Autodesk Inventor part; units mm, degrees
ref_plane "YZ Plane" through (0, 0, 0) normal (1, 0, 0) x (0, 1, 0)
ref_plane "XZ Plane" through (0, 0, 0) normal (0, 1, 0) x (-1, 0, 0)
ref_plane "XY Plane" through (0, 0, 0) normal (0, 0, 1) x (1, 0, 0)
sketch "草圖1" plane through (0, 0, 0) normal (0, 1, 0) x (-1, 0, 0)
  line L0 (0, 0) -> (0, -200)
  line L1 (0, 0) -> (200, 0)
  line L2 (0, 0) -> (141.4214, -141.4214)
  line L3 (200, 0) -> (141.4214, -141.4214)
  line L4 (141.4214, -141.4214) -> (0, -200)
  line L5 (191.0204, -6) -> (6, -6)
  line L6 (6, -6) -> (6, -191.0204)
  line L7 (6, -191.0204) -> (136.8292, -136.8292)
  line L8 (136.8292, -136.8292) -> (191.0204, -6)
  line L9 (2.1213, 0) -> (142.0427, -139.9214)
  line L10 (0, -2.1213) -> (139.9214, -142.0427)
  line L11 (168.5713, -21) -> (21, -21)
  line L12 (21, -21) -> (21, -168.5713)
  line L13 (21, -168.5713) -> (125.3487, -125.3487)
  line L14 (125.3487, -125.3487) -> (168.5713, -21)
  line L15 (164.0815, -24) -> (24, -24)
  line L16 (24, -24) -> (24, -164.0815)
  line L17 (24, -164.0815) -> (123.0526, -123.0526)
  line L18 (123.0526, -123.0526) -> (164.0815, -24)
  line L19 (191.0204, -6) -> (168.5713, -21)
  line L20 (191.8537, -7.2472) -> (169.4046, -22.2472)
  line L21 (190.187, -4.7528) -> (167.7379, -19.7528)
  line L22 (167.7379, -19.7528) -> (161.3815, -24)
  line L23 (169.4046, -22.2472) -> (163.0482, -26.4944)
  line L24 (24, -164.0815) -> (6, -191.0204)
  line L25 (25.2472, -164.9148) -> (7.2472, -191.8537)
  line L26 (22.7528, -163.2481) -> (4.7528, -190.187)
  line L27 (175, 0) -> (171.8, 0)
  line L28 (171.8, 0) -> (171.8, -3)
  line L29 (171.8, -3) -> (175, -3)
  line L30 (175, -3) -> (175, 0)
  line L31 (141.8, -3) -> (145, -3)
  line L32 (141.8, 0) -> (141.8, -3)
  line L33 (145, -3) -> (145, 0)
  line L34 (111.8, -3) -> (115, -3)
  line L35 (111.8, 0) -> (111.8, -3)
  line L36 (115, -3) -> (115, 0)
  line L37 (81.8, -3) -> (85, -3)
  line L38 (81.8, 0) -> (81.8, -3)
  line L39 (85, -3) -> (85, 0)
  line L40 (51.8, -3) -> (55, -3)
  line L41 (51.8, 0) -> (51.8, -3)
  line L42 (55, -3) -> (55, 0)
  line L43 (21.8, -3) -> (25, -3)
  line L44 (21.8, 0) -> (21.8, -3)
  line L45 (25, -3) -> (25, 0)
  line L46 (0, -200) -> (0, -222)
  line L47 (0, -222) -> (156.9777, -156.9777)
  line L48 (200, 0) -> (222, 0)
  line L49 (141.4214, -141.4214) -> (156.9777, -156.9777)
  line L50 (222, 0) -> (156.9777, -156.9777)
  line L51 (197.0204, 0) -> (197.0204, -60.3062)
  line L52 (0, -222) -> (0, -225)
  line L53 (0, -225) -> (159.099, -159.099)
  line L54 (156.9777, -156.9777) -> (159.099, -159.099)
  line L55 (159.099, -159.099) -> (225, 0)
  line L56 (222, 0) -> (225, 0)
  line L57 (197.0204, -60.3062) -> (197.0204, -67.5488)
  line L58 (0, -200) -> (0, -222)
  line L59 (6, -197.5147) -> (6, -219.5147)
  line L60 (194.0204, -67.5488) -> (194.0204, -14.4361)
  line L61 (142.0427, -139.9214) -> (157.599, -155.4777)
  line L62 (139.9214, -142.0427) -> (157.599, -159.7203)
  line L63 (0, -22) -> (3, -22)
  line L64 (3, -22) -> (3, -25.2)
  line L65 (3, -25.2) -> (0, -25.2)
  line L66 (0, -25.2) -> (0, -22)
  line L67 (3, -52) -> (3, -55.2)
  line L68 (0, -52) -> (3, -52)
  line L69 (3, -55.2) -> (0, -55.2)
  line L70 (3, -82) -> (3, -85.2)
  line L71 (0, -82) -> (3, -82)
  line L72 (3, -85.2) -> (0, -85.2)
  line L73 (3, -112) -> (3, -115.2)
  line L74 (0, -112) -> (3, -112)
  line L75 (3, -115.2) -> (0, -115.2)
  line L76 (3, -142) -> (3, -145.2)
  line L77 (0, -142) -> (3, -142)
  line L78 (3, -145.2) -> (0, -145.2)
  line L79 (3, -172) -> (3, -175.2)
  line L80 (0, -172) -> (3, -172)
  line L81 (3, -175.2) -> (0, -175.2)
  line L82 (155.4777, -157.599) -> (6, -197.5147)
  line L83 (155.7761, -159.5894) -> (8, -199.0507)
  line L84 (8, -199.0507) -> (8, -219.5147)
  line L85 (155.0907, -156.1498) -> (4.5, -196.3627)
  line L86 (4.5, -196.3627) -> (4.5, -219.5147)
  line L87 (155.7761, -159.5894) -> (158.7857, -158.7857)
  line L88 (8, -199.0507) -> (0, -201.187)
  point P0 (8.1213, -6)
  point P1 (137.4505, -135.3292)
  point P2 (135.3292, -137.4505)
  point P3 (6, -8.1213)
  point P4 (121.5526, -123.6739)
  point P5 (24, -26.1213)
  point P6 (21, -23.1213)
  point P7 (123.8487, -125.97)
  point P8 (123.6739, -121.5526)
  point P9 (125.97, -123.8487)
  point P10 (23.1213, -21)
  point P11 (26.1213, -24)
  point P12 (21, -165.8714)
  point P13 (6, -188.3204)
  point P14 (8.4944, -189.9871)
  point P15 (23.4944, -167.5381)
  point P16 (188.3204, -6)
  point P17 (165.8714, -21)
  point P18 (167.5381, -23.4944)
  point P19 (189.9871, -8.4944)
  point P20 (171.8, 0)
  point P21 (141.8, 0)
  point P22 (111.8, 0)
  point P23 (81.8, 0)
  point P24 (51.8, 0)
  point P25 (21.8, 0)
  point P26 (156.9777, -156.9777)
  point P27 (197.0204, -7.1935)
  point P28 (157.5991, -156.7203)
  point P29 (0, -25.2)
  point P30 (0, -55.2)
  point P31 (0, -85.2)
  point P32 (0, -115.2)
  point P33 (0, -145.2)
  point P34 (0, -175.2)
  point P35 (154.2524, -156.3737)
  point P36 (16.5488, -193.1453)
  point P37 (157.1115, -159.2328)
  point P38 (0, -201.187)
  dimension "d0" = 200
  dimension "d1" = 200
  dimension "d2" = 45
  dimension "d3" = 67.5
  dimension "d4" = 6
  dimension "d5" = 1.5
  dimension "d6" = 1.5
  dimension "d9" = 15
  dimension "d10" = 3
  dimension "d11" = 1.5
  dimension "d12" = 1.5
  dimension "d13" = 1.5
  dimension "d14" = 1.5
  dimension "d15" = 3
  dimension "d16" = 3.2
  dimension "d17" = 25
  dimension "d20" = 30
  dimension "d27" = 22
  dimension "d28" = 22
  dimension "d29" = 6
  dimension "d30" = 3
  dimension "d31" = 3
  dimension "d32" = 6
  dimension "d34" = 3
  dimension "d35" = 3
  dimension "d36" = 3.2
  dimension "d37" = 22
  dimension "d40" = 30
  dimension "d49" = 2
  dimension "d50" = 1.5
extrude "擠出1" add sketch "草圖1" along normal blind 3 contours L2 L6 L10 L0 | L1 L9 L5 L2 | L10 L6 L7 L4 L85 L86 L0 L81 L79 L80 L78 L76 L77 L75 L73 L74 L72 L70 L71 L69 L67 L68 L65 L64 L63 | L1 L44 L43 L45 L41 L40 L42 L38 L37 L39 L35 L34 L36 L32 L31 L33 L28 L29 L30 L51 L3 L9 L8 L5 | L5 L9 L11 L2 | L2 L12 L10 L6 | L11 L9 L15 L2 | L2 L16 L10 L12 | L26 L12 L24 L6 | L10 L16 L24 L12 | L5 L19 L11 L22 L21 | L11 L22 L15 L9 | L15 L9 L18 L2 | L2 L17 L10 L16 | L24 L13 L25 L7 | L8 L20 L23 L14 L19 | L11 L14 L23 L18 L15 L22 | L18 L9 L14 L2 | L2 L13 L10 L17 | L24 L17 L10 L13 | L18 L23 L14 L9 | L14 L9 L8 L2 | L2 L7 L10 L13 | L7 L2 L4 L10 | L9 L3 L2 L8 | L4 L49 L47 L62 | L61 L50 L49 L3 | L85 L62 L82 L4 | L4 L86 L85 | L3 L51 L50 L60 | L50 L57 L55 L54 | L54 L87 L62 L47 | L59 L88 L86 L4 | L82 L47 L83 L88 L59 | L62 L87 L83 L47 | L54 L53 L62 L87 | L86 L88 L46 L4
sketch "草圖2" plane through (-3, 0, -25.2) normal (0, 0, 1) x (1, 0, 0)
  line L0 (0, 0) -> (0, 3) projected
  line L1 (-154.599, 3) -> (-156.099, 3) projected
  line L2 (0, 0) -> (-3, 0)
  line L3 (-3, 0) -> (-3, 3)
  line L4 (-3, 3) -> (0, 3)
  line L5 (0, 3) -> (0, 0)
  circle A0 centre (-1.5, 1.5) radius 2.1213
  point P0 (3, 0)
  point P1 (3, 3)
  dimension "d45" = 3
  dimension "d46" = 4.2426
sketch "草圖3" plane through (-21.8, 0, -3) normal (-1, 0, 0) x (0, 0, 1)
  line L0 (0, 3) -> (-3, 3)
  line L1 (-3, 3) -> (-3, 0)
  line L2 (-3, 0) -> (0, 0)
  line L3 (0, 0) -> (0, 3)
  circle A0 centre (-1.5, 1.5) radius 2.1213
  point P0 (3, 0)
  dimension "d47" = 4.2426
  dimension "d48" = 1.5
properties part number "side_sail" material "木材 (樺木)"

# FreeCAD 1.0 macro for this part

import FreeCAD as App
import Part
import Sketcher
from FreeCAD import Vector
Q = App.Units.Quantity


def add_polygon(sketch, points):
    """Adds a closed chain of lines whose ends are joined by coincident constraints."""
    first, n = sketch.GeometryCount, len(points)
    for a, b in zip(points, points[1:] + points[:1]):
        sketch.addGeometry(Part.LineSegment(App.Vector(*a, 0), App.Vector(*b, 0)), False)
    for i in range(n):
        sketch.addConstraint(Sketcher.Constraint("Coincident", first + i, 2, first + (i + 1) % n, 1))

doc = App.newDocument("Part")
body = doc.addObject("PartDesign::Body", "Body")

# Sketch on XZ plane
sketch1 = body.newObject("Sketcher::SketchObject", "Sketch")
sketch1.AttachmentSupport = (doc.getObject("XZ_Plane"), [""])
sketch1.MapMode = "FlatFace"
add_polygon(sketch1, [(0, 0), (0, -22), (-3, -22), (-3, -25.2), (0, -25.2), (0, -52), (-3, -52), (-3, -55.2), (0, -55.2), (0, -82), (-3, -82), (-3, -85.2), (0, -85.2), (0, -112), (-3, -112), (-3, -115.2), (0, -115.2), (0, -142), (-3, -142), (-3, -145.2), (0, -145.2), (0, -172), (-3, -172), (-3, -175.2), (0, -175.2), (0, -201.2), (-8, -199.1), (-155.8, -159.6), (-157.1, -159.2), (-157.6, -159.7), (-159.1, -159.1), (-197, -67.5), (-197, 0), (-175, 0), (-175, -3), (-171.8, -3), (-171.8, 0), (-145, 0), (-145, -3), (-141.8, -3), (-141.8, 0), (-115, 0), (-115, -3), (-111.8, -3), (-111.8, 0), (-85, 0), (-85, -3), (-81.8, -3), (-81.8, 0), (-55, 0), (-55, -3), (-51.8, -3), (-51.8, 0), (-25, 0), (-25, -3), (-21.8, -3), (-21.8, 0)])  # lines 0-56
add_polygon(sketch1, [(-6, -8.1), (-21, -23.1), (-21, -165.9), (-6, -188.3)])  # lines 57-60
add_polygon(sketch1, [(-135.3, -137.5), (-8.5, -190), (-23.5, -167.5), (-123.8, -126)])  # lines 61-64
add_polygon(sketch1, [(-16.5, -193.1), (-139.9, -142), (-154.3, -156.4)])  # lines 65-67
add_polygon(sketch1, [(-142, -139.9), (-194, -14.4), (-194, -67.5), (-157.6, -155.5)])  # lines 68-71
add_polygon(sketch1, [(-190, -8.5), (-137.5, -135.3), (-126, -123.8), (-167.5, -23.5), (-169.4, -22.2)])  # lines 72-76
add_polygon(sketch1, [(-8.1, -6), (-188.3, -6), (-167.7, -19.8), (-165.9, -21), (-23.1, -21)])  # lines 77-81
add_polygon(sketch1, [(-24, -26.1), (-121.6, -123.7), (-24, -164.1)])  # lines 82-84
add_polygon(sketch1, [(-164.1, -24), (-123.7, -121.6), (-26.1, -24)])  # lines 85-87
sketch1.addConstraint([
    Sketcher.Constraint("Vertical", 0),
    Sketcher.Constraint("Horizontal", 1),
    Sketcher.Constraint("Vertical", 2),
    Sketcher.Constraint("Horizontal", 3),
    Sketcher.Constraint("Vertical", 4),
    Sketcher.Constraint("Horizontal", 5),
    Sketcher.Constraint("Vertical", 6),
    Sketcher.Constraint("Horizontal", 7),
    Sketcher.Constraint("Vertical", 8),
    Sketcher.Constraint("Horizontal", 9),
    Sketcher.Constraint("Vertical", 10),
    Sketcher.Constraint("Horizontal", 11),
    Sketcher.Constraint("Vertical", 12),
    Sketcher.Constraint("Horizontal", 13),
    Sketcher.Constraint("Vertical", 14),
    Sketcher.Constraint("Horizontal", 15),
    Sketcher.Constraint("Vertical", 16),
    Sketcher.Constraint("Horizontal", 17),
    Sketcher.Constraint("Vertical", 18),
    Sketcher.Constraint("Horizontal", 19),
    Sketcher.Constraint("Vertical", 20),
    Sketcher.Constraint("Horizontal", 21),
    Sketcher.Constraint("Vertical", 22),
    Sketcher.Constraint("Horizontal", 23),
    Sketcher.Constraint("Vertical", 24),
    Sketcher.Constraint("Vertical", 31),
    Sketcher.Constraint("Horizontal", 32),
    Sketcher.Constraint("Vertical", 33),
    Sketcher.Constraint("Horizontal", 34),
    Sketcher.Constraint("Vertical", 35),
    Sketcher.Constraint("Horizontal", 36),
    Sketcher.Constraint("Vertical", 37),
    Sketcher.Constraint("Horizontal", 38),
    Sketcher.Constraint("Vertical", 39),
    Sketcher.Constraint("Horizontal", 40),
    Sketcher.Constraint("Vertical", 41),
    Sketcher.Constraint("Horizontal", 42),
    Sketcher.Constraint("Vertical", 43),
    Sketcher.Constraint("Horizontal", 44),
    Sketcher.Constraint("Vertical", 45),
    Sketcher.Constraint("Horizontal", 46),
    Sketcher.Constraint("Vertical", 47),
    Sketcher.Constraint("Horizontal", 48),
    Sketcher.Constraint("Vertical", 49),
    Sketcher.Constraint("Horizontal", 50),
    Sketcher.Constraint("Vertical", 51),
    Sketcher.Constraint("Horizontal", 52),
    Sketcher.Constraint("Vertical", 53),
    Sketcher.Constraint("Horizontal", 54),
    Sketcher.Constraint("Vertical", 55),
    Sketcher.Constraint("Horizontal", 56),
    Sketcher.Constraint("Vertical", 58),
    Sketcher.Constraint("Vertical", 60),
    Sketcher.Constraint("Vertical", 69),
    Sketcher.Constraint("Horizontal", 77),
    Sketcher.Constraint("Horizontal", 80),
    Sketcher.Constraint("Vertical", 84),
    Sketcher.Constraint("Horizontal", 87),
    Sketcher.Constraint("Coincident", 56, 2, -1, 1),
    Sketcher.Constraint("PointOnObject", 3, 2, -2),
    Sketcher.Constraint("PointOnObject", 7, 2, -2),
    Sketcher.Constraint("PointOnObject", 11, 2, -2),
    Sketcher.Constraint("PointOnObject", 15, 2, -2),
    Sketcher.Constraint("PointOnObject", 19, 2, -2),
    Sketcher.Constraint("PointOnObject", 23, 2, -2),
    Sketcher.Constraint("PointOnObject", 31, 2, -1),
    Sketcher.Constraint("PointOnObject", 35, 2, -1),
    Sketcher.Constraint("PointOnObject", 39, 2, -1),
    Sketcher.Constraint("PointOnObject", 43, 2, -1),
    Sketcher.Constraint("PointOnObject", 47, 2, -1),
    Sketcher.Constraint("PointOnObject", 51, 2, -1),
    Sketcher.Constraint("Parallel", 25, 26),
    Sketcher.Constraint("Parallel", 26, 27),
    Sketcher.Constraint("Parallel", 28, 57),
    Sketcher.Constraint("Parallel", 29, 61),
    Sketcher.Constraint("Parallel", 59, 62),
    Sketcher.Constraint("Parallel", 61, 63),
    Sketcher.Constraint("Parallel", 57, 64),
    Sketcher.Constraint("Parallel", 63, 65),
    Sketcher.Constraint("Parallel", 64, 66),
    Sketcher.Constraint("Parallel", 27, 67),
    Sketcher.Constraint("Parallel", 30, 68),
    Sketcher.Constraint("Parallel", 68, 70),
    Sketcher.Constraint("Parallel", 66, 71),
    Sketcher.Constraint("Parallel", 70, 72),
    Sketcher.Constraint("Parallel", 71, 73),
    Sketcher.Constraint("Parallel", 72, 74),
    Sketcher.Constraint("Parallel", 75, 76),
    Sketcher.Constraint("Parallel", 76, 78),
    Sketcher.Constraint("Parallel", 78, 79),
    Sketcher.Constraint("Parallel", 73, 81),
    Sketcher.Constraint("Parallel", 81, 82),
    Sketcher.Constraint("Parallel", 65, 83),
    Sketcher.Constraint("Parallel", 74, 85),
    Sketcher.Constraint("Parallel", 82, 86),
    Sketcher.Constraint("Horizontal", 34, 2, 37, 2),
    Sketcher.Constraint("Horizontal", 38, 2, 41, 2),
    Sketcher.Constraint("Horizontal", 42, 2, 45, 2),
    Sketcher.Constraint("Horizontal", 46, 2, 49, 2),
    Sketcher.Constraint("Horizontal", 50, 2, 53, 2),
    Sketcher.Constraint("Horizontal", 30, 2, 69, 2),
    Sketcher.Constraint("Vertical", 2, 2, 5, 2),
    Sketcher.Constraint("Vertical", 6, 2, 9, 2),
    Sketcher.Constraint("Vertical", 10, 2, 13, 2),
    Sketcher.Constraint("Vertical", 14, 2, 17, 2),
    Sketcher.Constraint("Vertical", 18, 2, 21, 2),
    Sketcher.Constraint("Vertical", 28, 2, 70, 2),
    Sketcher.Constraint("Equal", 34, 38),
    Sketcher.Constraint("Equal", 36, 40),
    Sketcher.Constraint("Equal", 38, 42),
    Sketcher.Constraint("Equal", 40, 44),
    Sketcher.Constraint("Equal", 42, 46),
    Sketcher.Constraint("Equal", 44, 48),
    Sketcher.Constraint("Equal", 46, 50),
    Sketcher.Constraint("Equal", 48, 52),
    Sketcher.Constraint("Equal", 50, 54),
    Sketcher.Constraint("Equal", 54, 2),
    Sketcher.Constraint("Equal", 52, 4),
    Sketcher.Constraint("Equal", 2, 6),
    Sketcher.Constraint("Equal", 4, 8),
    Sketcher.Constraint("Equal", 6, 10),
    Sketcher.Constraint("Equal", 8, 12),
    Sketcher.Constraint("Equal", 10, 14),
    Sketcher.Constraint("Equal", 12, 16),
    Sketcher.Constraint("Equal", 14, 18),
    Sketcher.Constraint("Equal", 16, 20),
    Sketcher.Constraint("Equal", 18, 22),
    Sketcher.Constraint("Equal", 23, 33),
    Sketcher.Constraint("Equal", 80, 58),
    Sketcher.Constraint("Equal", 77, 60),
    Sketcher.Constraint("Equal", 87, 84),
    Sketcher.Constraint("Equal", 59, 62),
    Sketcher.Constraint("Equal", 61, 72),
    Sketcher.Constraint("Equal", 64, 73),
    Sketcher.Constraint("Equal", 63, 74),
    Sketcher.Constraint("Equal", 76, 78),
    Sketcher.Constraint("Equal", 75, 79),
    Sketcher.Constraint("Equal", 57, 81),
    Sketcher.Constraint("DistanceX", 1, 2, 1, 1, 3.0),
    Sketcher.Constraint("DistanceY", 0, 2, 0, 1, 22.0),
    Sketcher.Constraint("Distance", 71, 22.0),
    Sketcher.Constraint("DistanceX", 34, 1, 34, 2, 3.2),
    Sketcher.Constraint("DistanceX", 52, 2, -1, 1, 25.0),
    Sketcher.Constraint("DistanceX", 59, 2, -1, 1, 6.0),
    Sketcher.Constraint("DistanceY", 77, 2, -1, 1, 6.0),
    Sketcher.Constraint("Angle", 70, Q("-67.5 deg")),
    Sketcher.Constraint("DistanceX", 36, 1, 36, 2, 26.8),
    Sketcher.Constraint("DistanceX", 25, 2, -1, 1, 8.0),
    Sketcher.Constraint("DistanceX", 57, 2, -1, 1, 21.0),
    Sketcher.Constraint("DistanceX", 83, 2, -1, 1, 24.0),
    Sketcher.Constraint("DistanceY", 86, 2, -1, 1, 24.0),
    Sketcher.Constraint("DistanceX", 80, 1, 80, 2, 142.75),
    Sketcher.Constraint("Angle", 26, Q("165.049 deg")),
    Sketcher.Constraint("Angle", 59, Q("-56.25 deg")),
    Sketcher.Constraint("DistanceY", 24, 2, 24, 1, 25.987),
    Sketcher.Constraint("DistanceY", 63, 2, -1, 1, 125.97),
    Sketcher.Constraint("DistanceX", 73, 2, -1, 1, 125.97),
    Sketcher.Constraint("Distance", 61, 137.285),
    Sketcher.Constraint("Distance", 66, 20.267),
    Sketcher.Constraint("Distance", 79, 2.245),
    Sketcher.Constraint("DistanceX", 32, 1, 32, 2, 22.0204),
    Sketcher.Constraint("DistanceX", 87, 2, 87, 1, 137.9602),
    Sketcher.Constraint("DistanceY", 31, 1, 31, 2, 67.5488),
    Sketcher.Constraint("DistanceX", 26, 2, -1, 1, 155.776),
    Sketcher.Constraint("DistanceX", 28, 2, -1, 1, 157.599),
    Sketcher.Constraint("DistanceX", 29, 2, -1, 1, 159.099),
    Sketcher.Constraint("DistanceX", 67, 2, -1, 1, 16.549),
    Sketcher.Constraint("DistanceX", 78, 2, -1, 1, 167.738),
    Sketcher.Constraint("DistanceY", 82, 2, -1, 1, 123.674),
    Sketcher.Constraint("DistanceX", 85, 2, -1, 1, 123.674),
    Sketcher.Constraint("Distance", 68, 135.8243),
    Sketcher.Constraint("DistanceY", 57, 2, -1, 1, 23.1213),
    Sketcher.Constraint("DistanceX", 61, 2, -1, 1, 8.4944),
    Sketcher.Constraint("DistanceY", 65, 2, -1, 1, 142.0427),
    Sketcher.Constraint("DistanceY", 72, 2, -1, 1, 135.3292),
])
pad1 = body.newObject("PartDesign::Pad", "Pad")
pad1.Profile = sketch1
pad1.Length = 3
pad1.Reversed = True

doc.recompute()
